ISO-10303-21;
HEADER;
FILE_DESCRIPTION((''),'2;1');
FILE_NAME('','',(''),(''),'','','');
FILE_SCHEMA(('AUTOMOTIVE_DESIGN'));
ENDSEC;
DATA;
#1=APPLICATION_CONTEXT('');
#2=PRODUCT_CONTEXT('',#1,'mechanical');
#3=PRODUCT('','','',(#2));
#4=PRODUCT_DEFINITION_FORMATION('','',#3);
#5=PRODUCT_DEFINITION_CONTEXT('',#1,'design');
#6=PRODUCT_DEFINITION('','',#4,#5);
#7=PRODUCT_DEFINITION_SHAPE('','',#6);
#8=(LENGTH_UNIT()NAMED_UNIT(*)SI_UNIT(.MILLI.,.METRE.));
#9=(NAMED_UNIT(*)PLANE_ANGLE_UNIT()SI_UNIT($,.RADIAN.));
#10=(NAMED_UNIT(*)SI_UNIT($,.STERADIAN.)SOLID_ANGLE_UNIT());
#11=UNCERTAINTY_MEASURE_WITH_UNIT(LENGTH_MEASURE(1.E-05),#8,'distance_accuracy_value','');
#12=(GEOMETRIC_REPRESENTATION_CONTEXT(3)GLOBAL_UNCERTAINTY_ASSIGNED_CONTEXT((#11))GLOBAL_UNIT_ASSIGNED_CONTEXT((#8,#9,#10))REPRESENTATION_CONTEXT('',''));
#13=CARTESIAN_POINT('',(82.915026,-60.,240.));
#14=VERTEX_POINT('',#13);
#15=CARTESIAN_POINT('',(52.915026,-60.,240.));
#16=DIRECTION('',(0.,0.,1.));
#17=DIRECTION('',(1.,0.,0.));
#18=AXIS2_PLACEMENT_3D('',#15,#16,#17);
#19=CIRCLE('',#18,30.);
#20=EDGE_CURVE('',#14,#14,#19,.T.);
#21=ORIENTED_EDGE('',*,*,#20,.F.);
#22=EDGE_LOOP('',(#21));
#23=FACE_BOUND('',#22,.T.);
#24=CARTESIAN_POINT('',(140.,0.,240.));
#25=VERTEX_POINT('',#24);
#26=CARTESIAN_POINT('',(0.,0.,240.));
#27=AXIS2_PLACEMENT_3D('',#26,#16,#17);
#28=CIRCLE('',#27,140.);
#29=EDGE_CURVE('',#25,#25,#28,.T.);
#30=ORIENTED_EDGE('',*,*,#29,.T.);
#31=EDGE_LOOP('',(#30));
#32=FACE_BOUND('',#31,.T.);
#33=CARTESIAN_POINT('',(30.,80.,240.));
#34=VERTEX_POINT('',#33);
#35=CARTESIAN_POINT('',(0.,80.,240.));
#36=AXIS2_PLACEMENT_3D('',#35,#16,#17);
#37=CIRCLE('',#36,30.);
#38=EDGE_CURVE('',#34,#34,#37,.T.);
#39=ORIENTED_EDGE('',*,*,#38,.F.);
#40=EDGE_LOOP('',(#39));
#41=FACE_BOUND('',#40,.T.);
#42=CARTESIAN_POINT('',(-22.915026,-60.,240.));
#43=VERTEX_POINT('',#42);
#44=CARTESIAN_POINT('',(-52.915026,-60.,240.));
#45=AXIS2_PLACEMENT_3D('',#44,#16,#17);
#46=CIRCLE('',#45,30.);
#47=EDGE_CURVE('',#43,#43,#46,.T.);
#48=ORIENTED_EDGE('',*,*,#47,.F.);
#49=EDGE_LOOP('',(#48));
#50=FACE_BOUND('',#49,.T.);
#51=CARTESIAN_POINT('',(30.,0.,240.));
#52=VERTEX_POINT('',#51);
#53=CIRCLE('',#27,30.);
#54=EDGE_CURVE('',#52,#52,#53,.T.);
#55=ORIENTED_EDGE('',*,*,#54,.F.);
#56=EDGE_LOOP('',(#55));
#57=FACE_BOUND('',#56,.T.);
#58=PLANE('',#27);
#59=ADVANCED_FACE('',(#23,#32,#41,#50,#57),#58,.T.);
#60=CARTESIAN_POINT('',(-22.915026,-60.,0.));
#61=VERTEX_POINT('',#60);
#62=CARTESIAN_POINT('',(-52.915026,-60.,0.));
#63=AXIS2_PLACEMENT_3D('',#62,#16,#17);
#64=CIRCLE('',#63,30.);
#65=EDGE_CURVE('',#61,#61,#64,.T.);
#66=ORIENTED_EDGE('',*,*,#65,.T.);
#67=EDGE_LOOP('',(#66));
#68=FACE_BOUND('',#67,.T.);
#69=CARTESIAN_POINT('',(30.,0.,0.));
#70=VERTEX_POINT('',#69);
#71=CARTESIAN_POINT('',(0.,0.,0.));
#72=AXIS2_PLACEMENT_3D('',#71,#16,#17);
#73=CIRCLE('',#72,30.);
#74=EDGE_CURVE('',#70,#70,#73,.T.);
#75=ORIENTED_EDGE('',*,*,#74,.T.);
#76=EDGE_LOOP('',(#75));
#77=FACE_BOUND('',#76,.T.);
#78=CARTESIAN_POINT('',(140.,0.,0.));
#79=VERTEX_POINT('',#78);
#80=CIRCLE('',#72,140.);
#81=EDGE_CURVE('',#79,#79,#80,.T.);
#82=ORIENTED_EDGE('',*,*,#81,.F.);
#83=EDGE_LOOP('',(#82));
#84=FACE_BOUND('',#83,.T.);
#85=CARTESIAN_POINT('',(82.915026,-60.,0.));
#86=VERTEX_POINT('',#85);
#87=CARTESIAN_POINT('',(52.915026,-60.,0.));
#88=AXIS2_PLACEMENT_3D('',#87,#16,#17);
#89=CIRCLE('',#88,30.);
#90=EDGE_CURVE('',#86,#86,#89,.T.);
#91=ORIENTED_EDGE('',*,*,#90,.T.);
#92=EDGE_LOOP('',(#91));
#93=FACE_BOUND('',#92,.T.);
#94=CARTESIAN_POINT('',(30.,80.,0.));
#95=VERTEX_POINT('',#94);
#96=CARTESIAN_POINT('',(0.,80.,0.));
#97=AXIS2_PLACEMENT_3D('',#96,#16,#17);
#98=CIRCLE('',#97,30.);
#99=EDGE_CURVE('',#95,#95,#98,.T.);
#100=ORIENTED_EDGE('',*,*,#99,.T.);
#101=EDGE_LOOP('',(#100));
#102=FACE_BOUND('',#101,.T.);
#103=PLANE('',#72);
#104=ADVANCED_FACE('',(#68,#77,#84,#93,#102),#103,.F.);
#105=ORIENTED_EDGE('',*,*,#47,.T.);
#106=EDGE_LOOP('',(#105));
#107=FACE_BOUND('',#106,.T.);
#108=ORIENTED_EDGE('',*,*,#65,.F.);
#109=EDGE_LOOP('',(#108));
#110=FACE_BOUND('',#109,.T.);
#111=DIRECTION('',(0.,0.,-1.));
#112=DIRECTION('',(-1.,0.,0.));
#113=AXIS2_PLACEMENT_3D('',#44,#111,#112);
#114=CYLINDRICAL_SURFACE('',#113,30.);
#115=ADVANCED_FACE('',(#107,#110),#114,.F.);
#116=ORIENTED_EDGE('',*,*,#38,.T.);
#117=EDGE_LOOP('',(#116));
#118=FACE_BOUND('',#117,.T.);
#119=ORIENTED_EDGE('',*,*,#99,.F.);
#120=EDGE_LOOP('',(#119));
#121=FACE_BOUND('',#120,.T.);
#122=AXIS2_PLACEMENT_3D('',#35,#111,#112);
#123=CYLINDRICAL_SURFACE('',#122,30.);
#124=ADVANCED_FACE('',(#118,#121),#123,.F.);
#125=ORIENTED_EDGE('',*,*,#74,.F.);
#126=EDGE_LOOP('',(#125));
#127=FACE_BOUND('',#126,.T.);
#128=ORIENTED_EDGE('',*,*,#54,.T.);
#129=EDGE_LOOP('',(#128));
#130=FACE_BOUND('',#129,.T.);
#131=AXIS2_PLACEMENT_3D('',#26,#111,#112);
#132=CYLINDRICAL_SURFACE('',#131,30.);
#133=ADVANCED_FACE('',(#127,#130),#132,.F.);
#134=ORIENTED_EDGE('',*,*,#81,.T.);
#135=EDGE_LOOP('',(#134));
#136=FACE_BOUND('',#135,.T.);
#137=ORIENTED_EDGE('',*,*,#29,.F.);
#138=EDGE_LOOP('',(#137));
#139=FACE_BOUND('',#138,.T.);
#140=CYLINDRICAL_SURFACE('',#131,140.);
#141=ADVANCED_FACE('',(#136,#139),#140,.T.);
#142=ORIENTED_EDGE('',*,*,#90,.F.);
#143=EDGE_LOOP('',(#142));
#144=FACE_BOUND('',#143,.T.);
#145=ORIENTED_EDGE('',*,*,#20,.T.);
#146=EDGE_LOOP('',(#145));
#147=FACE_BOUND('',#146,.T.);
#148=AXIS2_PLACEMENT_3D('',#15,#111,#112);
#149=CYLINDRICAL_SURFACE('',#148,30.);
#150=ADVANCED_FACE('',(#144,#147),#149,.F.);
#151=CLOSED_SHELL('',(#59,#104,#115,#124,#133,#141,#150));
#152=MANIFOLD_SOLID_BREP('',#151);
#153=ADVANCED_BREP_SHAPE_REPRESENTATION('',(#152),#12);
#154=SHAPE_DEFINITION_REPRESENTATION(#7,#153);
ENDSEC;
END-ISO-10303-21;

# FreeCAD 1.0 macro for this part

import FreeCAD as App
import Part
import Sketcher

V = App.Vector

doc = App.newDocument("Part")
params = doc.addObject("Spreadsheet::Sheet", "Params")
for row, (alias, value) in enumerate([
    ("sketch1_diameter", "280 mm"),
    ("sketch1_diameter2", "60 mm"),
    ("pad1_length", "240 mm"),
], start=1):
    params.set(f"A{row}", alias)
    params.set(f"B{row}", "=" + value)
    params.setAlias(f"B{row}", alias)

body = doc.addObject("PartDesign::Body", "Body")

sketch1 = body.newObject("Sketcher::SketchObject", "Sketch")
sketch1.AttachmentSupport = (doc.getObject("XY_Plane"), [""])
sketch1.MapMode = "FlatFace"
sketch1.addGeometry([
    Part.Circle(V(0, 0, 0), V(0, 0, 1), 140),
    Part.Circle(V(-53, -60, 0), V(0, 0, 1), 30),
    Part.Circle(V(0, 0, 0), V(0, 0, 1), 30),
    Part.Circle(V(53, -60, 0), V(0, 0, 1), 30),
    Part.Circle(V(0, 80, 0), V(0, 0, 1), 30),
], False)
sketch1.addConstraint([
    Sketcher.Constraint("Coincident", 0, 3, -1, 1),
    Sketcher.Constraint("Coincident", 2, 3, -1, 1),
    Sketcher.Constraint("Equal", 1, 2),
    Sketcher.Constraint("Equal", 2, 3),
    Sketcher.Constraint("Equal", 3, 4),
    Sketcher.Constraint("Symmetric", 1, 3, 3, 3, -2),
    Sketcher.Constraint("PointOnObject", 4, 3, -2),
    Sketcher.Constraint("Diameter", 0, 280.0),
    Sketcher.Constraint("Diameter", 1, 60.0),
    Sketcher.Constraint("DistanceY", 1, 3, -1, 1, 60.0),
    Sketcher.Constraint("DistanceY", -1, 1, 4, 3, 80.0),
    Sketcher.Constraint("DistanceX", 1, 3, -1, 1, 52.915026),
])
sketch1.setExpression("Constraints[7]", "Params.sketch1_diameter")
sketch1.setExpression("Constraints[8]", "Params.sketch1_diameter2")
pad1 = body.newObject("PartDesign::Pad", "Pad")
pad1.Profile = sketch1
pad1.setExpression("Length", "Params.pad1_length")

doc.recompute()
